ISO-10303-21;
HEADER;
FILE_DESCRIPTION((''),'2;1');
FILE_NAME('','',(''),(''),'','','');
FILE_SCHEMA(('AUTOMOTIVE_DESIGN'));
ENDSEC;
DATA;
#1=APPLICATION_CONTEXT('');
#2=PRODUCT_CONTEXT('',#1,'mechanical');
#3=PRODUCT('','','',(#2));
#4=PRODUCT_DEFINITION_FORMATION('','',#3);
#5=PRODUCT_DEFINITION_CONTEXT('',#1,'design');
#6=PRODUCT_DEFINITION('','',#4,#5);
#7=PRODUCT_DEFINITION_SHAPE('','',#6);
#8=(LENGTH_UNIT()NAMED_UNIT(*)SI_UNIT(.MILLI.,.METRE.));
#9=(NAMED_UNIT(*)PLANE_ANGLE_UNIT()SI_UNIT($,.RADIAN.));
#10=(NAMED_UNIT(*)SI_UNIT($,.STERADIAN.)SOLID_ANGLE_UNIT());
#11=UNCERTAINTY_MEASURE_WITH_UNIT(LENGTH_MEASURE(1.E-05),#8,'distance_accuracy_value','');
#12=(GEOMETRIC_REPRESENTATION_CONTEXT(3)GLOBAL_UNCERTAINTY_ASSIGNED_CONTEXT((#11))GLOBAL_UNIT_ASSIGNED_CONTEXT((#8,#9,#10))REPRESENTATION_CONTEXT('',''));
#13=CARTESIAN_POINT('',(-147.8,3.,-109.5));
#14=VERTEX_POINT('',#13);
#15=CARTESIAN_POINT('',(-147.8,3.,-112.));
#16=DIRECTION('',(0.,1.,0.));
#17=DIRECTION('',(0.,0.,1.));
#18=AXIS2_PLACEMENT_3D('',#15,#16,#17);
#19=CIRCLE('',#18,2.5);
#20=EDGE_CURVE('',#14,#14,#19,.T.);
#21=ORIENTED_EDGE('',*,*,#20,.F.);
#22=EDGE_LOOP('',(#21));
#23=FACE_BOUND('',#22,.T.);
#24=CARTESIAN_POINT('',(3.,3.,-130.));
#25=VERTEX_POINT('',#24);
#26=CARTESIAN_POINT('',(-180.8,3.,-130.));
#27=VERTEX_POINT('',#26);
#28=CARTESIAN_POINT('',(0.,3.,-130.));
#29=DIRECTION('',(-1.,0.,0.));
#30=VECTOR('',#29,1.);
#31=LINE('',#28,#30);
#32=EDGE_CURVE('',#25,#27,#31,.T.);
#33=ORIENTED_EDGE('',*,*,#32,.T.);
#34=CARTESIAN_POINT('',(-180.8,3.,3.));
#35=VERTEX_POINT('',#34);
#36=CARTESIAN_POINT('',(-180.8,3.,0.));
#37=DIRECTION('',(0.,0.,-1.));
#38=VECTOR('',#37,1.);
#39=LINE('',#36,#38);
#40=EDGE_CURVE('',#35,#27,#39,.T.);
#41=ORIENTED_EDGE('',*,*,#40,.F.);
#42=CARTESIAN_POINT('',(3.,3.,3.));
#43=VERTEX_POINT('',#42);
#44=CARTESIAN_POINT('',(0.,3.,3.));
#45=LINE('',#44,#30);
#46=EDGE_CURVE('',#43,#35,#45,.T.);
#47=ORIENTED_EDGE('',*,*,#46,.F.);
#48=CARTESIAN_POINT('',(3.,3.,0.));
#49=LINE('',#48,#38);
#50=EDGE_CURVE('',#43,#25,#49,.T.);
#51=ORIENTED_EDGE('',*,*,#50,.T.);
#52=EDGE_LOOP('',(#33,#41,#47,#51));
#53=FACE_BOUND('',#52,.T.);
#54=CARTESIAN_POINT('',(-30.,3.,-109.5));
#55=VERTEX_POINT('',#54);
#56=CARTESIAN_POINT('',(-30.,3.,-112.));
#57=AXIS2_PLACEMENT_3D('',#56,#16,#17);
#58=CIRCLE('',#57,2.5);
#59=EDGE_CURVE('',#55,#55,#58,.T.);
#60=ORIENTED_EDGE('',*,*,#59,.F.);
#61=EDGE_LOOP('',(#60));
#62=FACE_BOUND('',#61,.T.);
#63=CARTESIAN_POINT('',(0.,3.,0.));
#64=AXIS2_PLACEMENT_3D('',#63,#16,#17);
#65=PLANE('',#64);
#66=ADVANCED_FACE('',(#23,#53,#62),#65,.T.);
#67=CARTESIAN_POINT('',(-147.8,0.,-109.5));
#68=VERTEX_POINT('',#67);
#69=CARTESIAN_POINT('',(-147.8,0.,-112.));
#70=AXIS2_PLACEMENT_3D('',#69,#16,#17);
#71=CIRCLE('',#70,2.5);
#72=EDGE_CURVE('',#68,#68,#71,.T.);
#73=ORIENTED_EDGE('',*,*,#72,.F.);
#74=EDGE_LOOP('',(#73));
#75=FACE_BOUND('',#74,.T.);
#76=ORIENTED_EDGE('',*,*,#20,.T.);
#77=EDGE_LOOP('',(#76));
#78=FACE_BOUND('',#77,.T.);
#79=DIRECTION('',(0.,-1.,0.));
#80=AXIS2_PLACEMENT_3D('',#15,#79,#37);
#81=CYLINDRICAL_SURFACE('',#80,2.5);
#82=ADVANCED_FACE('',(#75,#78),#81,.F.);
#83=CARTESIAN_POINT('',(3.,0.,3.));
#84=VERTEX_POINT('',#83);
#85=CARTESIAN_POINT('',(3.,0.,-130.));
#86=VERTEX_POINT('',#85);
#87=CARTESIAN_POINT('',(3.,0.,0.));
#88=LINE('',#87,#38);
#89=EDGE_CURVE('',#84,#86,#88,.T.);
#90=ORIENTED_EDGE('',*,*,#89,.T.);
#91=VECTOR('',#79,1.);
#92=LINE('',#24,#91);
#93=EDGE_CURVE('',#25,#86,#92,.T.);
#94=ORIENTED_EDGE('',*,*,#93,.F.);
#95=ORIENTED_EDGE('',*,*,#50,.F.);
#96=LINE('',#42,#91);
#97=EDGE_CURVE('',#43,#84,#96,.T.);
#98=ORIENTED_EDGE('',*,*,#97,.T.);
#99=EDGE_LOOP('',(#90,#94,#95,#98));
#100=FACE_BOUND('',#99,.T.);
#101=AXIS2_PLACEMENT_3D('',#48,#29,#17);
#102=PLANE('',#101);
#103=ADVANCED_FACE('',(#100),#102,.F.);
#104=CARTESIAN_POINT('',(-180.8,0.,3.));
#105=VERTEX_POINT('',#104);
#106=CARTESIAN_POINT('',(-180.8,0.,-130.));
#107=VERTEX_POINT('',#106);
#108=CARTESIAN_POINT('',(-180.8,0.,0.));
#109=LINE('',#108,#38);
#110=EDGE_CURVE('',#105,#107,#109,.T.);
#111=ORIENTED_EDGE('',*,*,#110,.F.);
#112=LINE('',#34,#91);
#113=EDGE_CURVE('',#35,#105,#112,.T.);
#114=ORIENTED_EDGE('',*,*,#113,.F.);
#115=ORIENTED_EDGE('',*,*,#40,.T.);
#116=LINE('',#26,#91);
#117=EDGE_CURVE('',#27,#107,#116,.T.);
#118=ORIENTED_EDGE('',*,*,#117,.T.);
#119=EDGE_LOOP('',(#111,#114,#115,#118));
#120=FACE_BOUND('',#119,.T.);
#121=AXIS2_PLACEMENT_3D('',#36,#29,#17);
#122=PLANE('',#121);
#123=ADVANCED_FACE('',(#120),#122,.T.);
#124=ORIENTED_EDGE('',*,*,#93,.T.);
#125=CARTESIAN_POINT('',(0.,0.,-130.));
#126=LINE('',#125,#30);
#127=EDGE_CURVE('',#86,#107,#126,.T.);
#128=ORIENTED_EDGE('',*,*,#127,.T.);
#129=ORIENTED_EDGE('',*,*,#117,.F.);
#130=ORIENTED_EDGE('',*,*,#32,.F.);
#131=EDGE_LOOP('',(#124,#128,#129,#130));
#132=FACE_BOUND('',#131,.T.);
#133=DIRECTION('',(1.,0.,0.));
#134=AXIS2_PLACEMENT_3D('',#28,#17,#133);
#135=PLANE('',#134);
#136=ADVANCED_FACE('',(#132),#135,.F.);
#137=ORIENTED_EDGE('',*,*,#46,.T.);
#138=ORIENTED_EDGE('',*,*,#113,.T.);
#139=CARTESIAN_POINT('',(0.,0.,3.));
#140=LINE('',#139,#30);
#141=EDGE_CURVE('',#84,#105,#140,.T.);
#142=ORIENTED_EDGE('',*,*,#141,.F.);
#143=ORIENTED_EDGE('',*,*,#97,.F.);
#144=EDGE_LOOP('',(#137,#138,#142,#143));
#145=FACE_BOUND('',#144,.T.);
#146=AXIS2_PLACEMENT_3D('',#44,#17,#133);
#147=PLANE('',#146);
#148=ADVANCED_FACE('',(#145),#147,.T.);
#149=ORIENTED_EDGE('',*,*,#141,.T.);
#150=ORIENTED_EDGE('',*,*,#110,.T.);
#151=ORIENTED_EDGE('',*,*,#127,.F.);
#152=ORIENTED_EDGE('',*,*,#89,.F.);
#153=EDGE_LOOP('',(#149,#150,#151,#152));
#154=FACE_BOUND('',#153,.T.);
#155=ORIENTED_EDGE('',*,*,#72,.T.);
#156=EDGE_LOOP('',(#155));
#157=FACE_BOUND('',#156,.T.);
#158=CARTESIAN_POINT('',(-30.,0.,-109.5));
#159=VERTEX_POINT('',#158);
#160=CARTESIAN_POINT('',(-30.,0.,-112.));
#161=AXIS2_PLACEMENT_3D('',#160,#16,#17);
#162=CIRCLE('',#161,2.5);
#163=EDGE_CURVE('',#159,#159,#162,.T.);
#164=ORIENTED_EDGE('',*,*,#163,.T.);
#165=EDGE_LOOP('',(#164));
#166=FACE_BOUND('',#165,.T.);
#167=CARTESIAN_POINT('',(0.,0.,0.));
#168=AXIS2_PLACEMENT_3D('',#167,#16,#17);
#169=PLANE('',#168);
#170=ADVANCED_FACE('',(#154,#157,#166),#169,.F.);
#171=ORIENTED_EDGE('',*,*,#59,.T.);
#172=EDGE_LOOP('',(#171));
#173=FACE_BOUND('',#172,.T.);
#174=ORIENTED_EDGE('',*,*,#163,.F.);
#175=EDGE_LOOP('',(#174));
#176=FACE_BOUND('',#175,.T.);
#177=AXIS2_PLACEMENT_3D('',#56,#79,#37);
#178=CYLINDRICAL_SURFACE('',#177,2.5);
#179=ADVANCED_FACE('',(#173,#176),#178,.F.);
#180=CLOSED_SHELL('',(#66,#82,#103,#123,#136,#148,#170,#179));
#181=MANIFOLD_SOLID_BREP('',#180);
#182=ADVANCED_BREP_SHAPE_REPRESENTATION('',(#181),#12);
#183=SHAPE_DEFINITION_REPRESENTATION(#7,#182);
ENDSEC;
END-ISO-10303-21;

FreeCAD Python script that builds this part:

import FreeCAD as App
import Part
import Sketcher
from FreeCAD import Vector

doc = App.newDocument("Part")
body = doc.addObject("PartDesign::Body", "Body")

sketch1 = body.newObject("Sketcher::SketchObject", "Sketch")
sketch1.AttachmentSupport = (doc.getObject("XZ_Plane"), [""])
sketch1.MapMode = "FlatFace"
sketch1.addGeometry([
    Part.LineSegment(Vector(-180.8, -130, 0), Vector(-180.8, 3, 0)),
    Part.LineSegment(Vector(-180.8, 3, 0), Vector(3, 3, 0)),
    Part.LineSegment(Vector(3, 3, 0), Vector(3, -130, 0)),
    Part.LineSegment(Vector(3, -130, 0), Vector(-180.8, -130, 0)),
    Part.Circle(Vector(-147.8, -112, 0), Vector(0, 0, 1), 2.5),
    Part.Circle(Vector(-30, -112, 0), Vector(0, 0, 1), 2.5),
], False)
sketch1.addConstraint([
    Sketcher.Constraint("Coincident", 0, 2, 1, 1),
    Sketcher.Constraint("Coincident", 1, 2, 2, 1),
    Sketcher.Constraint("Coincident", 2, 2, 3, 1),
    Sketcher.Constraint("Coincident", 3, 2, 0, 1),
    Sketcher.Constraint("Vertical", 0),
    Sketcher.Constraint("Horizontal", 1),
    Sketcher.Constraint("Vertical", 2),
    Sketcher.Constraint("Horizontal", 3),
    Sketcher.Constraint("Equal", 4, 5),
    Sketcher.Constraint("Horizontal", 4, 3, 5, 3),
    Sketcher.Constraint("Diameter", 4, 5.0),
    Sketcher.Constraint("DistanceY", 0, 1, 0, 2, 133.0),
    Sketcher.Constraint("DistanceX", 1, 1, 1, 2, 183.8),
    Sketcher.Constraint("DistanceY", 4, 3, -1, 1, 112.0),
    Sketcher.Constraint("DistanceX", 5, 3, -1, 1, 30.0),
    Sketcher.Constraint("DistanceY", -1, 1, 0, 2, 3.0),
    Sketcher.Constraint("DistanceX", -1, 1, 1, 2, 3.0),
    Sketcher.Constraint("DistanceX", 0, 2, 4, 3, 33.0),
])
pad1 = body.newObject("PartDesign::Pad", "Pad")
pad1.Profile = sketch1
pad1.Length = 3
pad1.Reversed = True

doc.recompute()
